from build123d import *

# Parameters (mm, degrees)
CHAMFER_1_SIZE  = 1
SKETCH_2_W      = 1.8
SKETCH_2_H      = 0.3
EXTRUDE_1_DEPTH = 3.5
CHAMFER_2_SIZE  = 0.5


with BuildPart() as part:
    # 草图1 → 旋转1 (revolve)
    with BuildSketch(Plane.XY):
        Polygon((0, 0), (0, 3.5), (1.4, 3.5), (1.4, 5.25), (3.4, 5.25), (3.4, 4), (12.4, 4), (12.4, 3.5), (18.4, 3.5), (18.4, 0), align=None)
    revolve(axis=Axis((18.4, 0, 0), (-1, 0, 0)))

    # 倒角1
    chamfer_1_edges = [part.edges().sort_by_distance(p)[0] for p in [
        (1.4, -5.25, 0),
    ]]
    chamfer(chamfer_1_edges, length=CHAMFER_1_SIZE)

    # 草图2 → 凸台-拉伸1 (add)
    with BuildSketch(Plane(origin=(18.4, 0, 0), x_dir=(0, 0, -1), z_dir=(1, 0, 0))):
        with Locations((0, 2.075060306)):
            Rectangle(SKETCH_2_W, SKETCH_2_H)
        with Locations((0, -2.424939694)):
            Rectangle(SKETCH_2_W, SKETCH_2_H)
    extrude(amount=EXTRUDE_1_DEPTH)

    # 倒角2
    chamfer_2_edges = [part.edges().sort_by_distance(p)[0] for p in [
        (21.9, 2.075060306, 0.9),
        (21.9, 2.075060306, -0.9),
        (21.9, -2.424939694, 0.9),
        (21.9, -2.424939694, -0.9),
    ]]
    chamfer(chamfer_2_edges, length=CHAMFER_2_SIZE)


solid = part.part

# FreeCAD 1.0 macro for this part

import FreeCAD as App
import Part
import Sketcher
Q = App.Units.Quantity


def edges_at(feature, points):
    """Names of the edges that pass closest to the given points."""
    edges = feature.Shape.Edges
    near = lambda p: min(range(len(edges)), key=lambda i: edges[i].distToShape(Part.Vertex(*p))[0])
    return sorted({f"Edge{near(p) + 1}" for p in points})

doc = App.newDocument("Part")
body = doc.addObject("PartDesign::Body", "Body")

# Sketch on XY plane
sketch1 = body.newObject("Sketcher::SketchObject", "Sketch")
sketch1.AttachmentSupport = (doc.getObject("XY_Plane"), [""])
sketch1.MapMode = "FlatFace"
sketch1.addGeometry(Part.LineSegment(App.Vector(0, 3.5, 0), App.Vector(0, 0, 0)), False)
sketch1.addGeometry(Part.LineSegment(App.Vector(0, 0, 0), App.Vector(18.4, 0, 0)), False)
sketch1.addGeometry(Part.LineSegment(App.Vector(18.4, 0, 0), App.Vector(18.4, 3.5, 0)), False)
sketch1.addGeometry(Part.LineSegment(App.Vector(18.4, 3.5, 0), App.Vector(12.4, 3.5, 0)), False)
sketch1.addGeometry(Part.LineSegment(App.Vector(12.4, 3.5, 0), App.Vector(12.4, 4, 0)), False)
sketch1.addGeometry(Part.LineSegment(App.Vector(12.4, 4, 0), App.Vector(3.4, 4, 0)), False)
sketch1.addGeometry(Part.LineSegment(App.Vector(3.4, 4, 0), App.Vector(3.4, 5.25, 0)), False)
sketch1.addGeometry(Part.LineSegment(App.Vector(3.4, 5.25, 0), App.Vector(1.4, 5.25, 0)), False)
sketch1.addGeometry(Part.LineSegment(App.Vector(1.4, 5.25, 0), App.Vector(1.4, 3.5, 0)), False)
sketch1.addGeometry(Part.LineSegment(App.Vector(1.4, 3.5, 0), App.Vector(0, 3.5, 0)), False)
sketch1.addConstraint(Sketcher.Constraint("Coincident", 0, 2, 1, 1))
sketch1.addConstraint(Sketcher.Constraint("Coincident", 1, 2, 2, 1))
sketch1.addConstraint(Sketcher.Constraint("Coincident", 2, 2, 3, 1))
sketch1.addConstraint(Sketcher.Constraint("Coincident", 3, 2, 4, 1))
sketch1.addConstraint(Sketcher.Constraint("Coincident", 4, 2, 5, 1))
sketch1.addConstraint(Sketcher.Constraint("Coincident", 5, 2, 6, 1))
sketch1.addConstraint(Sketcher.Constraint("Coincident", 6, 2, 7, 1))
sketch1.addConstraint(Sketcher.Constraint("Coincident", 7, 2, 8, 1))
sketch1.addConstraint(Sketcher.Constraint("Coincident", 8, 2, 9, 1))
sketch1.addConstraint(Sketcher.Constraint("Coincident", 9, 2, 0, 1))
sketch1.addConstraint(Sketcher.Constraint("Vertical", 0))
sketch1.addConstraint(Sketcher.Constraint("Horizontal", 1))
sketch1.addConstraint(Sketcher.Constraint("Vertical", 2))
sketch1.addConstraint(Sketcher.Constraint("Horizontal", 3))
sketch1.addConstraint(Sketcher.Constraint("Vertical", 4))
sketch1.addConstraint(Sketcher.Constraint("Horizontal", 5))
sketch1.addConstraint(Sketcher.Constraint("Vertical", 6))
sketch1.addConstraint(Sketcher.Constraint("Horizontal", 7))
sketch1.addConstraint(Sketcher.Constraint("Vertical", 8))
sketch1.addConstraint(Sketcher.Constraint("Horizontal", 9))
sketch1.addConstraint(Sketcher.Constraint("Coincident", 0, 2, -1, 1))
sketch1.addConstraint(Sketcher.Constraint("Horizontal", 3, 2, 8, 2))
sketch1.addConstraint(Sketcher.Constraint("DistanceX", 3, 2, 3, 1, Q("6 mm")))
sketch1.addConstraint(Sketcher.Constraint("DistanceX", 5, 2, 5, 1, Q("9 mm")))
sketch1.addConstraint(Sketcher.Constraint("DistanceX", 7, 2, 7, 1, Q("2 mm")))
sketch1.addConstraint(Sketcher.Constraint("DistanceX", 1, 1, 1, 2, Q("18.4 mm")))
sketch1.addConstraint(Sketcher.Constraint("DistanceY", 0, 2, 0, 1, Q("3.5 mm")))
sketch1.addConstraint(Sketcher.Constraint("DistanceY", 4, 1, 4, 2, Q("0.5 mm")))
sketch1.addConstraint(Sketcher.Constraint("DistanceY", 6, 1, 6, 2, Q("1.25 mm")))
revolution = body.newObject("PartDesign::Revolution", "Revolution")
revolution.Profile = sketch1
revolution.ReferenceAxis = (sketch1, ["H_Axis"])
revolution.Angle = 360
doc.recompute()

chamfer = body.newObject("PartDesign::Chamfer", "Chamfer")
chamfer.Base = (revolution, edges_at(revolution, [(1.4, -5.25, 0)]))
chamfer.Size = 1

# Sketch on YZ plane
sketch2 = body.newObject("Sketcher::SketchObject", "Sketch001")
sketch2.AttachmentSupport = (doc.getObject("YZ_Plane"), [""])
sketch2.MapMode = "FlatFace"
sketch2.AttachmentOffset = App.Placement(App.Vector(0, 0, 18.4), App.Rotation())
sketch2.addGeometry(Part.LineSegment(App.Vector(2.22506, 0.9, 0), App.Vector(1.92506, 0.9, 0)), False)
sketch2.addGeometry(Part.LineSegment(App.Vector(1.92506, 0.9, 0), App.Vector(1.92506, -0.9, 0)), False)
sketch2.addGeometry(Part.LineSegment(App.Vector(1.92506, -0.9, 0), App.Vector(2.22506, -0.9, 0)), False)
sketch2.addGeometry(Part.LineSegment(App.Vector(2.22506, -0.9, 0), App.Vector(2.22506, 0.9, 0)), False)
sketch2.addGeometry(Part.LineSegment(App.Vector(-2.27494, 0.9, 0), App.Vector(-2.57494, 0.9, 0)), False)
sketch2.addGeometry(Part.LineSegment(App.Vector(-2.57494, 0.9, 0), App.Vector(-2.57494, -0.9, 0)), False)
sketch2.addGeometry(Part.LineSegment(App.Vector(-2.57494, -0.9, 0), App.Vector(-2.27494, -0.9, 0)), False)
sketch2.addGeometry(Part.LineSegment(App.Vector(-2.27494, -0.9, 0), App.Vector(-2.27494, 0.9, 0)), False)
sketch2.addConstraint(Sketcher.Constraint("Coincident", 0, 2, 1, 1))
sketch2.addConstraint(Sketcher.Constraint("Coincident", 1, 2, 2, 1))
sketch2.addConstraint(Sketcher.Constraint("Coincident", 2, 2, 3, 1))
sketch2.addConstraint(Sketcher.Constraint("Coincident", 3, 2, 0, 1))
sketch2.addConstraint(Sketcher.Constraint("Coincident", 4, 2, 5, 1))
sketch2.addConstraint(Sketcher.Constraint("Coincident", 5, 2, 6, 1))
sketch2.addConstraint(Sketcher.Constraint("Coincident", 6, 2, 7, 1))
sketch2.addConstraint(Sketcher.Constraint("Coincident", 7, 2, 4, 1))
sketch2.addConstraint(Sketcher.Constraint("Horizontal", 0))
sketch2.addConstraint(Sketcher.Constraint("Vertical", 1))
sketch2.addConstraint(Sketcher.Constraint("Horizontal", 2))
sketch2.addConstraint(Sketcher.Constraint("Vertical", 3))
sketch2.addConstraint(Sketcher.Constraint("Horizontal", 4))
sketch2.addConstraint(Sketcher.Constraint("Vertical", 5))
sketch2.addConstraint(Sketcher.Constraint("Horizontal", 6))
sketch2.addConstraint(Sketcher.Constraint("Vertical", 7))
sketch2.addConstraint(Sketcher.Constraint("Horizontal", 3, 2, 4, 2))
sketch2.addConstraint(Sketcher.Constraint("Horizontal", 2, 2, 5, 2))
sketch2.addConstraint(Sketcher.Constraint("Equal", 2, 4))
sketch2.addConstraint(Sketcher.Constraint("DistanceX", 0, 2, 0, 1, Q("0.3 mm")))
sketch2.addConstraint(Sketcher.Constraint("DistanceY", 1, 2, 1, 1, Q("1.8 mm")))
sketch2.addConstraint(Sketcher.Constraint("DistanceY", -1, 1, 0, 2, Q("0.9 mm")))
sketch2.addConstraint(Sketcher.Constraint("DistanceX", 4, 2, 0, 2, Q("4.5 mm")))
sketch2.addConstraint(Sketcher.Constraint("DistanceX", -1, 1, 0, 2, Q("1.92506 mm")))
pad1 = body.newObject("PartDesign::Pad", "Pad")
pad1.Profile = sketch2
pad1.Length = 3.5
doc.recompute()

chamfer2 = body.newObject("PartDesign::Chamfer", "Chamfer001")
chamfer2.Base = (pad1, edges_at(pad1, [
    (21.9, 2.075, 0.9),
    (21.9, 2.075, -0.9),
    (21.9, -2.425, 0.9),
    (21.9, -2.425, -0.9),
]))
chamfer2.Size = 0.5

doc.recompute()
